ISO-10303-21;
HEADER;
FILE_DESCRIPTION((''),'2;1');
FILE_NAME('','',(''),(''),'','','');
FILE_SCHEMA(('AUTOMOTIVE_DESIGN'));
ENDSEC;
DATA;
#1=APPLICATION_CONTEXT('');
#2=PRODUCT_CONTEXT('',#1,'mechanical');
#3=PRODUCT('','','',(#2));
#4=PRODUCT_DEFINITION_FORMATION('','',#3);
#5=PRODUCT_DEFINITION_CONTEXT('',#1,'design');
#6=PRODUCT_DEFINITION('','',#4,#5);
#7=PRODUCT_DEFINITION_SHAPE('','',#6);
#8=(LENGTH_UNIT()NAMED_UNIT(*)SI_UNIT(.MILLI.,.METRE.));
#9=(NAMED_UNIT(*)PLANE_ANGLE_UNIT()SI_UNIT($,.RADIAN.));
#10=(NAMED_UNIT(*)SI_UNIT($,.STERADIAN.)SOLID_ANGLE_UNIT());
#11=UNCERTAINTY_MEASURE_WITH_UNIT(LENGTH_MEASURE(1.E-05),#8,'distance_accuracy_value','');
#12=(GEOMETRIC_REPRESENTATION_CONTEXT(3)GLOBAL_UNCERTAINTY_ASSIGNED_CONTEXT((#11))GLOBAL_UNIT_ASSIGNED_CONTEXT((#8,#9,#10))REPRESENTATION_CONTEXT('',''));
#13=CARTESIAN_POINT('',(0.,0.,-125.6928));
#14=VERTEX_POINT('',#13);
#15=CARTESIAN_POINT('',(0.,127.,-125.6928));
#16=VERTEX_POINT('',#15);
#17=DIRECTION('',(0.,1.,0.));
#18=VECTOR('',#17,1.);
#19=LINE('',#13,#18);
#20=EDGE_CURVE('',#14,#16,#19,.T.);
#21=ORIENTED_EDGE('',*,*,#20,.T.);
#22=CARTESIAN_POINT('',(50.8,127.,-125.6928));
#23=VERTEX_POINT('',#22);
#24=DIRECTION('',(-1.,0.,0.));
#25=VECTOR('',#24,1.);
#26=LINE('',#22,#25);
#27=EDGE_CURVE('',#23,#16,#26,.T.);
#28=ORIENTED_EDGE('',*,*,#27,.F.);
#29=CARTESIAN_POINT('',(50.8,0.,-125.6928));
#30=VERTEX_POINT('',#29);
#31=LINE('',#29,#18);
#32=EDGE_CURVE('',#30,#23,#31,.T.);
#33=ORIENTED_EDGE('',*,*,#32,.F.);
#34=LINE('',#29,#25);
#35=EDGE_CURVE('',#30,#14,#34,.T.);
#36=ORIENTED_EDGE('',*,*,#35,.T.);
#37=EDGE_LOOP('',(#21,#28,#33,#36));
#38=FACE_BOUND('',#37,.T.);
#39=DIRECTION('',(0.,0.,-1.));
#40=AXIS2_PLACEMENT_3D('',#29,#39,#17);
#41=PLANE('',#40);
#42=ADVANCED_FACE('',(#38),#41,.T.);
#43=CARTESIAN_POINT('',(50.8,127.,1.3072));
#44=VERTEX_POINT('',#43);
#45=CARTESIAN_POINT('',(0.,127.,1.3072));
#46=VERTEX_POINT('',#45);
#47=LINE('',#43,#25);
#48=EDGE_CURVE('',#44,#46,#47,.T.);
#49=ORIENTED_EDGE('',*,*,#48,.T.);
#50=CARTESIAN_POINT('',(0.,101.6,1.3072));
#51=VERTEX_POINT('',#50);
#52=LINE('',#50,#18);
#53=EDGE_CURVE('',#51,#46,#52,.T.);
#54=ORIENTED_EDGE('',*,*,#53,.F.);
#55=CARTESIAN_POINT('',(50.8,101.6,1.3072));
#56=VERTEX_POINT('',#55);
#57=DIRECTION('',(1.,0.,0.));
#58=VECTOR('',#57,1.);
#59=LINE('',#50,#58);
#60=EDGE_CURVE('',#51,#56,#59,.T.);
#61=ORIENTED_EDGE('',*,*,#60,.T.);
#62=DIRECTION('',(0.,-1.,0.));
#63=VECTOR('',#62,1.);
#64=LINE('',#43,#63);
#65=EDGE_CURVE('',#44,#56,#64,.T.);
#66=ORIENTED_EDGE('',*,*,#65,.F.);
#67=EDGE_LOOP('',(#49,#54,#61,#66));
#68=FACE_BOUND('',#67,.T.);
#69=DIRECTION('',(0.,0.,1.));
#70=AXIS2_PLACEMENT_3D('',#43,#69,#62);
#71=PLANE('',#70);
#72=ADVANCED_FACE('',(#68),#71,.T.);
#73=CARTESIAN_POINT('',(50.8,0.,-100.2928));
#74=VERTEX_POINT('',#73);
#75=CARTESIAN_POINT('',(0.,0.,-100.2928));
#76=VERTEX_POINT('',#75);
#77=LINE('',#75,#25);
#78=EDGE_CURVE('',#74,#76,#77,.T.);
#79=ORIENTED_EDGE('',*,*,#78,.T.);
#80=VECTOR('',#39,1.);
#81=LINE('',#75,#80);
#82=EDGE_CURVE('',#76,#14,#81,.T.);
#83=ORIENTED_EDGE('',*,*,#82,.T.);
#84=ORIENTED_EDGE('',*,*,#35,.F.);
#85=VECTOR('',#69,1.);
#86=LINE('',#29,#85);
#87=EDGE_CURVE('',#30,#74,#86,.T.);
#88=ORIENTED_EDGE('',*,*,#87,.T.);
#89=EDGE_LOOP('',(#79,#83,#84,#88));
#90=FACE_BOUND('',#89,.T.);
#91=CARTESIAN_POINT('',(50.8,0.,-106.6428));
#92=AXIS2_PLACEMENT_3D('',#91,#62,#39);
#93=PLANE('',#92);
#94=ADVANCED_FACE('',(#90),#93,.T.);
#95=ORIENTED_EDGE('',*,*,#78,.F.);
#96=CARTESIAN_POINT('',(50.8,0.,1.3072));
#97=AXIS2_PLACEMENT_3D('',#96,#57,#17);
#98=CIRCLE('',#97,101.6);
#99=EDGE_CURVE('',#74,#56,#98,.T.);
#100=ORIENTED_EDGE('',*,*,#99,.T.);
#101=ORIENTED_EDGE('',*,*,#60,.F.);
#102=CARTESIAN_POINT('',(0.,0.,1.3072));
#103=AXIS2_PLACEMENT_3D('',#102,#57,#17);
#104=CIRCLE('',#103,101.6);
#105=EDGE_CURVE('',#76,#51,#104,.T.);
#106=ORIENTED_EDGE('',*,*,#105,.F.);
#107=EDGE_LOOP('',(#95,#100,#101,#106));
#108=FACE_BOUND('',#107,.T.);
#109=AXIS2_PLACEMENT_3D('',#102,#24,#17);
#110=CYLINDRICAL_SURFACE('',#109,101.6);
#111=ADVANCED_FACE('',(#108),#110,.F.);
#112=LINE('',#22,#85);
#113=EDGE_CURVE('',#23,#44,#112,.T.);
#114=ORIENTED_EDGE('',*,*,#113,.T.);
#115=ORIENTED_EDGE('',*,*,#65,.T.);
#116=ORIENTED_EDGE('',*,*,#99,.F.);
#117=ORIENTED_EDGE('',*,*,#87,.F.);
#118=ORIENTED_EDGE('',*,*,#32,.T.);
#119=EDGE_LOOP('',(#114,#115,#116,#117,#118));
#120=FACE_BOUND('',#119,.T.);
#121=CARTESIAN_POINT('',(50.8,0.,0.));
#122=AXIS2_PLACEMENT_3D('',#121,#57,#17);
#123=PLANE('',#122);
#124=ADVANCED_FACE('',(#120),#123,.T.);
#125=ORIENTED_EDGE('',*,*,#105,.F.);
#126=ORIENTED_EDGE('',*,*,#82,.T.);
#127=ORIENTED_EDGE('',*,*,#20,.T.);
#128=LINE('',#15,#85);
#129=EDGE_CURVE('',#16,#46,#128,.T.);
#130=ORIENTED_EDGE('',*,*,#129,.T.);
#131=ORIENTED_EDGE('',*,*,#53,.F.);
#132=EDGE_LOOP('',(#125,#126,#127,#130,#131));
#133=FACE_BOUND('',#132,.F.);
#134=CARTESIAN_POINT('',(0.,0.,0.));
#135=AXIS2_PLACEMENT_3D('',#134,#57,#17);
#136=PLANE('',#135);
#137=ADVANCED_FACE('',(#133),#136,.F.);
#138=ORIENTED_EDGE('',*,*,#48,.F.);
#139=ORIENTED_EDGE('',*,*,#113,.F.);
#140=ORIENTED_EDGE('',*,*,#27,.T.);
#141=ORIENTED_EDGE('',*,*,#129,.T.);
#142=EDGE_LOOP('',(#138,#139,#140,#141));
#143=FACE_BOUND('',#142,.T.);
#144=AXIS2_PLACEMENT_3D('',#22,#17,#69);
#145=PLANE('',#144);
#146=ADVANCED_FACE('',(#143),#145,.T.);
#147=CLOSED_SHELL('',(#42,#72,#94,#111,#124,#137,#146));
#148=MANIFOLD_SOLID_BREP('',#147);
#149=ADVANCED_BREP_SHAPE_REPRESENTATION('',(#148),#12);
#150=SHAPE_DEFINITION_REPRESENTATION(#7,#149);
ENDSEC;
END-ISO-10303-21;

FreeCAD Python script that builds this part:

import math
import FreeCAD as App
import Part
import Sketcher
Q = App.Units.Quantity


def add_polygon(sketch, points):
    """Adds a closed chain of lines whose ends are joined by coincident constraints."""
    first, n = sketch.GeometryCount, len(points)
    for a, b in zip(points, points[1:] + points[:1]):
        sketch.addGeometry(Part.LineSegment(App.Vector(*a, 0), App.Vector(*b, 0)), False)
    for i in range(n):
        sketch.addConstraint(Sketcher.Constraint("Coincident", first + i, 2, first + (i + 1) % n, 1))

doc = App.newDocument("Part")
body = doc.addObject("PartDesign::Body", "Body")

# Sketch on YZ plane
sketch1 = body.newObject("Sketcher::SketchObject", "Sketch")
sketch1.AttachmentSupport = (doc.getObject("YZ_Plane"), [""])
sketch1.MapMode = "FlatFace"
sketch1.addGeometry(Part.Circle(App.Vector(0, 1.3072, 0), App.Vector(0, 0, 1), 107.95), False)
sketch1.addGeometry(Part.Circle(App.Vector(0, 1.3072, 0), App.Vector(0, 0, 1), 101.6), False)
sketch1.addConstraint(Sketcher.Constraint("Coincident", 1, 3, 0, 3))
sketch1.addConstraint(Sketcher.Constraint("PointOnObject", 0, 3, -2))
sketch1.addConstraint(Sketcher.Constraint("Diameter", 1, Q("8 in")))
sketch1.addConstraint(Sketcher.Constraint("Diameter", 0, Q("8.5 in")))
sketch1.addConstraint(Sketcher.Constraint("DistanceY", -1, 1, 0, 3, 1.3072))
pad1 = body.newObject("PartDesign::Pad", "Pad")
pad1.Profile = sketch1
pad1.Length = Q("2 in")

# Sketch on YZ plane
sketch2 = body.newObject("Sketcher::SketchObject", "Sketch001")
sketch2.AttachmentSupport = (doc.getObject("YZ_Plane"), [""])
sketch2.MapMode = "FlatFace"
sketch2.AttachmentOffset = App.Placement(App.Vector(0, 0, 2 * 25.4), App.Rotation())
sketch2.addGeometry(Part.ArcOfCircle(Part.Circle(App.Vector(0, 1.3072, 0), App.Vector(0, 0, 1), 107.95), math.radians(-90), math.radians(0)), False)
sketch2.addGeometry(Part.LineSegment(App.Vector(0, -106.6428, 0), App.Vector(0, -125.6928, 0)), False)
sketch2.addGeometry(Part.LineSegment(App.Vector(0, -125.6928, 0), App.Vector(127, -125.6928, 0)), False)
sketch2.addGeometry(Part.LineSegment(App.Vector(127, -125.6928, 0), App.Vector(127, 1.3072, 0)), False)
sketch2.addGeometry(Part.LineSegment(App.Vector(127, 1.3072, 0), App.Vector(107.95, 1.3072, 0)), False)
sketch2.addConstraint(Sketcher.Constraint("Coincident", 0, 1, 1, 1))
sketch2.addConstraint(Sketcher.Constraint("Coincident", 1, 2, 2, 1))
sketch2.addConstraint(Sketcher.Constraint("Coincident", 2, 2, 3, 1))
sketch2.addConstraint(Sketcher.Constraint("Coincident", 3, 2, 4, 1))
sketch2.addConstraint(Sketcher.Constraint("Coincident", 4, 2, 0, 2))
sketch2.addConstraint(Sketcher.Constraint("Vertical", 1))
sketch2.addConstraint(Sketcher.Constraint("Horizontal", 2))
sketch2.addConstraint(Sketcher.Constraint("Vertical", 3))
sketch2.addConstraint(Sketcher.Constraint("Horizontal", 4))
sketch2.addConstraint(Sketcher.Constraint("PointOnObject", 0, 3, -2))
sketch2.addConstraint(Sketcher.Constraint("PointOnObject", 0, 1, -2))
sketch2.addConstraint(Sketcher.Constraint("Horizontal", 0, 3, 3, 2))
sketch2.addConstraint(Sketcher.Constraint("Equal", 4, 1))
sketch2.addConstraint(Sketcher.Constraint("DistanceX", 2, 1, 2, 2, Q("5 in")))
sketch2.addConstraint(Sketcher.Constraint("Radius", 0, Q("4.25 in")))
sketch2.addConstraint(Sketcher.Constraint("DistanceY", -1, 1, 0, 3, 1.3072))
pad2 = body.newObject("PartDesign::Pad", "Pad001")
pad2.Profile = sketch2
pad2.Length = Q("2 in")
pad2.Reversed = True

# Sketch on YZ plane
sketch3 = body.newObject("Sketcher::SketchObject", "Sketch002")
sketch3.AttachmentSupport = (doc.getObject("YZ_Plane"), [""])
sketch3.MapMode = "FlatFace"
sketch3.AttachmentOffset = App.Placement(App.Vector(0, 0, 2 * 25.4), App.Rotation())
add_polygon(sketch3, [(142.5246, 1.3072), (142.5246, 164.0903), (-157.5435, 164.0903), (-157.5435, 20.2178), (-149.5335, 20.2178), (-149.5335, -195.7449), (0, -195.7449), (0, 1.3072)])  # lines 0-7
sketch3.addConstraint(Sketcher.Constraint("Vertical", 0))
sketch3.addConstraint(Sketcher.Constraint("Horizontal", 1))
sketch3.addConstraint(Sketcher.Constraint("Vertical", 2))
sketch3.addConstraint(Sketcher.Constraint("Horizontal", 3))
sketch3.addConstraint(Sketcher.Constraint("Vertical", 4))
sketch3.addConstraint(Sketcher.Constraint("Horizontal", 5))
sketch3.addConstraint(Sketcher.Constraint("Vertical", 6))
sketch3.addConstraint(Sketcher.Constraint("Horizontal", 7))
sketch3.addConstraint(Sketcher.Constraint("PointOnObject", 5, 2, -2))
sketch3.addConstraint(Sketcher.Constraint("DistanceX", 1, 2, 1, 1, Q("11.8137 in")))
sketch3.addConstraint(Sketcher.Constraint("DistanceX", 7, 1, 7, 2, Q("5.6112 in")))
sketch3.addConstraint(Sketcher.Constraint("DistanceX", 3, 1, 3, 2, 8.01))
sketch3.addConstraint(Sketcher.Constraint("DistanceY", 0, 1, 0, 2, 162.783))
sketch3.addConstraint(Sketcher.Constraint("DistanceY", 2, 2, 2, 1, 143.8725))
sketch3.addConstraint(Sketcher.Constraint("DistanceY", 4, 2, 4, 1, 215.9627))
sketch3.addConstraint(Sketcher.Constraint("DistanceY", 4, 2, -1, 1, Q("7.7065 in")))
pocket1 = body.newObject("PartDesign::Pocket", "Pocket")
pocket1.Profile = sketch3
pocket1.Length = Q("2 in")

doc.recompute()
